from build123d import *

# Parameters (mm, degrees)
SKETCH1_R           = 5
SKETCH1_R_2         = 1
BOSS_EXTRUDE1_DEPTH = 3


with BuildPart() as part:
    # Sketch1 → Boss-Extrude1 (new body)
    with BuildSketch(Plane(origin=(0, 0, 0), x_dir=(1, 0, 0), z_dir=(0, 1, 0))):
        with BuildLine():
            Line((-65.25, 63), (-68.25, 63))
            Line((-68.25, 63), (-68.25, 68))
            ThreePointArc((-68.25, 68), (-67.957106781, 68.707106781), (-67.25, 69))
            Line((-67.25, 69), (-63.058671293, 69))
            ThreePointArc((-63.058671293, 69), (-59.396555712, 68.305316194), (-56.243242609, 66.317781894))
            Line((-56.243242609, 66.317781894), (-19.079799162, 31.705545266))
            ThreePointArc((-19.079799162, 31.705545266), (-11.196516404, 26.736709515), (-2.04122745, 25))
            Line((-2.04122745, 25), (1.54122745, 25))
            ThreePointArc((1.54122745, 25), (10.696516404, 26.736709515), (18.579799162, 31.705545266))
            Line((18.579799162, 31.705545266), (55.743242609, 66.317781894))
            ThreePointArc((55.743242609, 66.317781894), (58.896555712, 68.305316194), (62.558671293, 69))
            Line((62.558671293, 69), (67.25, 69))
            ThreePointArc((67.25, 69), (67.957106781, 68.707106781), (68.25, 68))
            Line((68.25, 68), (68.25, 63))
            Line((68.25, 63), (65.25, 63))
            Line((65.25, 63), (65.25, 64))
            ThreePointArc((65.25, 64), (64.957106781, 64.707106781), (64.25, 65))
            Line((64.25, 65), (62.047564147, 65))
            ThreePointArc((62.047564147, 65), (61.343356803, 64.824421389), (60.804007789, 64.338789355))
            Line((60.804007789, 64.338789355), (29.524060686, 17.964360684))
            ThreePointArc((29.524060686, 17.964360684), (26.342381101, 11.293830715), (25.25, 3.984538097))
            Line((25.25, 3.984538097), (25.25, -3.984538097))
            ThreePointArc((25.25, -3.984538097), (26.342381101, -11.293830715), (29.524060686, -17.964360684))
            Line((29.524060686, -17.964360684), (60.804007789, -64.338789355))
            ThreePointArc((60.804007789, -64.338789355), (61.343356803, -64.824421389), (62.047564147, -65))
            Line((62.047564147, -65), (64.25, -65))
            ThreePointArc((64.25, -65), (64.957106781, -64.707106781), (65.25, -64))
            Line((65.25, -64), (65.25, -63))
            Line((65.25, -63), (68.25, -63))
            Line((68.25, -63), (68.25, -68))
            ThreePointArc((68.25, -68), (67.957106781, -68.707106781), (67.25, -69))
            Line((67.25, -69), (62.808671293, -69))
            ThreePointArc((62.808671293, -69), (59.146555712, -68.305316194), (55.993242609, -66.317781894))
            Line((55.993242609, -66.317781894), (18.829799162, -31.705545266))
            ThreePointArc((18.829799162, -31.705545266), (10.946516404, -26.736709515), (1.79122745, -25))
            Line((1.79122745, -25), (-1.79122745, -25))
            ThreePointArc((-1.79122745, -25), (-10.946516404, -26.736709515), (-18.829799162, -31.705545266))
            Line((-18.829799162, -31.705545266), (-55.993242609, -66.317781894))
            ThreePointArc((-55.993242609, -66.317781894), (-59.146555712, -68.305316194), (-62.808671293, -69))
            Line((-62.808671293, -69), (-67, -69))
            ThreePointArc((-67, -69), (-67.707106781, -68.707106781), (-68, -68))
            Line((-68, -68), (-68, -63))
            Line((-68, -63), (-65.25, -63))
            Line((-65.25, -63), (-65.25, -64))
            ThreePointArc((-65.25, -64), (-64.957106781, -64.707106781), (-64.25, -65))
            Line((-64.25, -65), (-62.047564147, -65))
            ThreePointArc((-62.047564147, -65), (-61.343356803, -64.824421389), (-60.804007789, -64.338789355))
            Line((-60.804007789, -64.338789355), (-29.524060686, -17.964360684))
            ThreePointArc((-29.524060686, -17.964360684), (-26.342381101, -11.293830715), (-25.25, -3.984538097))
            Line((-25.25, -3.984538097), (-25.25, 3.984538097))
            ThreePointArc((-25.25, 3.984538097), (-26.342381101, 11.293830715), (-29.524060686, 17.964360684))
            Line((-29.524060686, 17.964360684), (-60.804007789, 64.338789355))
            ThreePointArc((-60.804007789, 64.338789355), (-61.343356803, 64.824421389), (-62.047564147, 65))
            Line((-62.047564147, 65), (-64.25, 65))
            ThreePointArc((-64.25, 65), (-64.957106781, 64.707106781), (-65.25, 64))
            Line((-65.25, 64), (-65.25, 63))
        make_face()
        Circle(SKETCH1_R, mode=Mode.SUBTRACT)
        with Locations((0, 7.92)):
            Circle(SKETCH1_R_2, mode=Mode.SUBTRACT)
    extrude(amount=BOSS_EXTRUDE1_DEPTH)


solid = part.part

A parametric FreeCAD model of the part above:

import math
import FreeCAD as App
import Part
import Sketcher
from FreeCAD import Vector
Q = App.Units.Quantity

doc = App.newDocument("Part")
body = doc.addObject("PartDesign::Body", "Body")

# Sketch on XZ plane
sketch1 = doc.addObject("Sketcher::SketchObject", "Sketch")
body.addObject(sketch1)
sketch1.AttachmentSupport = (doc.XZ_Plane, [""])
sketch1.MapMode = "FlatFace"
sketch1.addGeometry([
    Part.LineSegment(Vector(-68.2, -63, 0), Vector(-65.2, -63, 0)),  # 0
    Part.LineSegment(Vector(-65.2, -63, 0), Vector(-65.2, -64, 0)),  # 1
    Part.ArcOfCircle(Part.Circle(Vector(-64.2, -64, 0), Vector(0, 0, 1), 1), math.radians(-180), math.radians(-90)),  # 2
    Part.LineSegment(Vector(-64.2, -65, 0), Vector(-62, -65, 0)),  # 3
    Part.ArcOfCircle(Part.Circle(Vector(-62, -63.5, 0), Vector(0, 0, 1), 1.5), math.radians(-90), math.radians(-34)),  # 4
    Part.LineSegment(Vector(-60.8, -64.3, 0), Vector(-29.5, -18, 0)),  # 5
    Part.ArcOfCircle(Part.Circle(Vector(-50.3, -4, 0), Vector(0, 0, 1), 25), math.radians(-34), math.radians(0)),  # 6
    Part.LineSegment(Vector(-25.2, -4, 0), Vector(-25.2, 4, 0)),  # 7
    Part.ArcOfCircle(Part.Circle(Vector(-50.3, 4, 0), Vector(0, 0, 1), 25), math.radians(0), math.radians(34)),  # 8
    Part.LineSegment(Vector(-29.5, 18, 0), Vector(-60.8, 64.3, 0)),  # 9
    Part.ArcOfCircle(Part.Circle(Vector(-62, 63.5, 0), Vector(0, 0, 1), 1.5), math.radians(34), math.radians(90)),  # 10
    Part.LineSegment(Vector(-62, 65, 0), Vector(-64.2, 65, 0)),  # 11
    Part.ArcOfCircle(Part.Circle(Vector(-64.2, 64, 0), Vector(0, 0, 1), 1), math.radians(90), math.radians(180)),  # 12
    Part.LineSegment(Vector(-65.2, 64, 0), Vector(-65.2, 63, 0)),  # 13
    Part.LineSegment(Vector(-65.2, 63, 0), Vector(-68, 63, 0)),  # 14
    Part.LineSegment(Vector(-68, 63, 0), Vector(-68, 68, 0)),  # 15
    Part.ArcOfCircle(Part.Circle(Vector(-67, 68, 0), Vector(0, 0, 1), 1), math.radians(90), math.radians(180)),  # 16
    Part.LineSegment(Vector(-67, 69, 0), Vector(-62.8, 69, 0)),  # 17
    Part.ArcOfCircle(Part.Circle(Vector(-62.8, 59, 0), Vector(0, 0, 1), 10), math.radians(47), math.radians(90)),  # 18
    Part.LineSegment(Vector(-56, 66.3, 0), Vector(-18.8, 31.7, 0)),  # 19
    Part.ArcOfCircle(Part.Circle(Vector(-1.8, 50, 0), Vector(0, 0, 1), 25), math.radians(-133), math.radians(-90)),  # 20
    Part.LineSegment(Vector(-1.8, 25, 0), Vector(1.8, 25, 0)),  # 21
    Part.ArcOfCircle(Part.Circle(Vector(1.8, 50, 0), Vector(0, 0, 1), 25), math.radians(-90), math.radians(-47)),  # 22
    Part.LineSegment(Vector(18.8, 31.7, 0), Vector(56, 66.3, 0)),  # 23
    Part.ArcOfCircle(Part.Circle(Vector(62.8, 59, 0), Vector(0, 0, 1), 10), math.radians(90), math.radians(133)),  # 24
    Part.LineSegment(Vector(62.8, 69, 0), Vector(67.2, 69, 0)),  # 25
    Part.ArcOfCircle(Part.Circle(Vector(67.2, 68, 0), Vector(0, 0, 1), 1), math.radians(0), math.radians(90)),  # 26
    Part.LineSegment(Vector(68.2, 68, 0), Vector(68.2, 63, 0)),  # 27
    Part.LineSegment(Vector(68.2, 63, 0), Vector(65.2, 63, 0)),  # 28
    Part.LineSegment(Vector(65.2, 63, 0), Vector(65.2, 64, 0)),  # 29
    Part.ArcOfCircle(Part.Circle(Vector(64.2, 64, 0), Vector(0, 0, 1), 1), math.radians(0), math.radians(90)),  # 30
    Part.LineSegment(Vector(64.2, 65, 0), Vector(62, 65, 0)),  # 31
    Part.ArcOfCircle(Part.Circle(Vector(62, 63.5, 0), Vector(0, 0, 1), 1.5), math.radians(90), math.radians(146)),  # 32
    Part.LineSegment(Vector(60.8, 64.3, 0), Vector(29.5, 18, 0)),  # 33
    Part.ArcOfCircle(Part.Circle(Vector(50.3, 4, 0), Vector(0, 0, 1), 25), math.radians(146), math.radians(180)),  # 34
    Part.LineSegment(Vector(25.2, 4, 0), Vector(25.2, -4, 0)),  # 35
    Part.ArcOfCircle(Part.Circle(Vector(50.3, -4, 0), Vector(0, 0, 1), 25), math.radians(-180), math.radians(-146)),  # 36
    Part.LineSegment(Vector(29.5, -18, 0), Vector(60.8, -64.3, 0)),  # 37
    Part.ArcOfCircle(Part.Circle(Vector(62, -63.5, 0), Vector(0, 0, 1), 1.5), math.radians(-146), math.radians(-90)),  # 38
    Part.LineSegment(Vector(62, -65, 0), Vector(64.2, -65, 0)),  # 39
    Part.ArcOfCircle(Part.Circle(Vector(64.2, -64, 0), Vector(0, 0, 1), 1), math.radians(-90), math.radians(0)),  # 40
    Part.LineSegment(Vector(65.2, -64, 0), Vector(65.2, -63, 0)),  # 41
    Part.LineSegment(Vector(65.2, -63, 0), Vector(68.2, -63, 0)),  # 42
    Part.LineSegment(Vector(68.2, -63, 0), Vector(68.2, -68, 0)),  # 43
    Part.ArcOfCircle(Part.Circle(Vector(67.2, -68, 0), Vector(0, 0, 1), 1), math.radians(-90), math.radians(0)),  # 44
    Part.LineSegment(Vector(67.2, -69, 0), Vector(62.6, -69, 0)),  # 45
    Part.ArcOfCircle(Part.Circle(Vector(62.6, -59, 0), Vector(0, 0, 1), 10), math.radians(-133), math.radians(-90)),  # 46
    Part.LineSegment(Vector(55.7, -66.3, 0), Vector(18.6, -31.7, 0)),  # 47
    Part.ArcOfCircle(Part.Circle(Vector(1.5, -50, 0), Vector(0, 0, 1), 25), math.radians(47), math.radians(90)),  # 48
    Part.LineSegment(Vector(1.5, -25, 0), Vector(-2, -25, 0)),  # 49
    Part.ArcOfCircle(Part.Circle(Vector(-2, -50, 0), Vector(0, 0, 1), 25), math.radians(90), math.radians(133)),  # 50
    Part.LineSegment(Vector(-19.1, -31.7, 0), Vector(-56.2, -66.3, 0)),  # 51
    Part.ArcOfCircle(Part.Circle(Vector(-63.1, -59, 0), Vector(0, 0, 1), 10), math.radians(-90), math.radians(-47)),  # 52
    Part.LineSegment(Vector(-63.1, -69, 0), Vector(-67.2, -69, 0)),  # 53
    Part.ArcOfCircle(Part.Circle(Vector(-67.2, -68, 0), Vector(0, 0, 1), 1), math.radians(-180), math.radians(-90)),  # 54
    Part.LineSegment(Vector(-68.2, -68, 0), Vector(-68.2, -63, 0)),  # 55
    Part.Circle(Vector(0, 0, 0), Vector(0, 0, 1), 5),  # 56
    Part.Circle(Vector(0, -7.9, 0), Vector(0, 0, 1), 1),  # 57
], False)
sketch1.addConstraint([
    Sketcher.Constraint("Coincident", 0, 2, 1, 1),
    Sketcher.Constraint("Tangent", 1, 2, 2, 1),
    Sketcher.Constraint("Tangent", 2, 2, 3, 1),
    Sketcher.Constraint("Tangent", 3, 2, 4, 1),
    Sketcher.Constraint("Tangent", 4, 2, 5, 1),
    Sketcher.Constraint("Tangent", 5, 2, 6, 1),
    Sketcher.Constraint("Tangent", 6, 2, 7, 1),
    Sketcher.Constraint("Tangent", 7, 2, 8, 1),
    Sketcher.Constraint("Tangent", 8, 2, 9, 1),
    Sketcher.Constraint("Tangent", 9, 2, 10, 1),
    Sketcher.Constraint("Tangent", 10, 2, 11, 1),
    Sketcher.Constraint("Tangent", 11, 2, 12, 1),
    Sketcher.Constraint("Tangent", 12, 2, 13, 1),
    Sketcher.Constraint("Coincident", 13, 2, 14, 1),
    Sketcher.Constraint("Coincident", 14, 2, 15, 1),
    Sketcher.Constraint("Tangent", 15, 2, 16, 2),
    Sketcher.Constraint("Tangent", 16, 1, 17, 1),
    Sketcher.Constraint("Tangent", 17, 2, 18, 2),
    Sketcher.Constraint("Tangent", 18, 1, 19, 1),
    Sketcher.Constraint("Tangent", 19, 2, 20, 1),
    Sketcher.Constraint("Tangent", 20, 2, 21, 1),
    Sketcher.Constraint("Tangent", 21, 2, 22, 1),
    Sketcher.Constraint("Tangent", 22, 2, 23, 1),
    Sketcher.Constraint("Tangent", 23, 2, 24, 2),
    Sketcher.Constraint("Tangent", 24, 1, 25, 1),
    Sketcher.Constraint("Tangent", 25, 2, 26, 2),
    Sketcher.Constraint("Tangent", 26, 1, 27, 1),
    Sketcher.Constraint("Coincident", 27, 2, 28, 1),
    Sketcher.Constraint("Coincident", 28, 2, 29, 1),
    Sketcher.Constraint("Tangent", 29, 2, 30, 1),
    Sketcher.Constraint("Tangent", 30, 2, 31, 1),
    Sketcher.Constraint("Tangent", 31, 2, 32, 1),
    Sketcher.Constraint("Tangent", 32, 2, 33, 1),
    Sketcher.Constraint("Tangent", 33, 2, 34, 1),
    Sketcher.Constraint("Tangent", 34, 2, 35, 1),
    Sketcher.Constraint("Tangent", 35, 2, 36, 1),
    Sketcher.Constraint("Tangent", 36, 2, 37, 1),
    Sketcher.Constraint("Tangent", 37, 2, 38, 1),
    Sketcher.Constraint("Tangent", 38, 2, 39, 1),
    Sketcher.Constraint("Tangent", 39, 2, 40, 1),
    Sketcher.Constraint("Tangent", 40, 2, 41, 1),
    Sketcher.Constraint("Coincident", 41, 2, 42, 1),
    Sketcher.Constraint("Coincident", 42, 2, 43, 1),
    Sketcher.Constraint("Tangent", 43, 2, 44, 2),
    Sketcher.Constraint("Tangent", 44, 1, 45, 1),
    Sketcher.Constraint("Tangent", 45, 2, 46, 2),
    Sketcher.Constraint("Tangent", 46, 1, 47, 1),
    Sketcher.Constraint("Tangent", 47, 2, 48, 1),
    Sketcher.Constraint("Tangent", 48, 2, 49, 1),
    Sketcher.Constraint("Tangent", 49, 2, 50, 1),
    Sketcher.Constraint("Tangent", 50, 2, 51, 1),
    Sketcher.Constraint("Tangent", 51, 2, 52, 2),
    Sketcher.Constraint("Tangent", 52, 1, 53, 1),
    Sketcher.Constraint("Tangent", 53, 2, 54, 2),
    Sketcher.Constraint("Tangent", 54, 1, 55, 1),
    Sketcher.Constraint("Coincident", 55, 2, 0, 1),
    Sketcher.Constraint("Horizontal", 0),
    Sketcher.Constraint("Vertical", 1),
    Sketcher.Constraint("Horizontal", 3),
    Sketcher.Constraint("Vertical", 7),
    Sketcher.Constraint("Horizontal", 11),
    Sketcher.Constraint("Vertical", 13),
    Sketcher.Constraint("Horizontal", 14),
    Sketcher.Constraint("Vertical", 15),
    Sketcher.Constraint("Horizontal", 17),
    Sketcher.Constraint("Horizontal", 21),
    Sketcher.Constraint("Horizontal", 25),
    Sketcher.Constraint("Vertical", 27),
    Sketcher.Constraint("Horizontal", 28),
    Sketcher.Constraint("Vertical", 29),
    Sketcher.Constraint("Horizontal", 31),
    Sketcher.Constraint("Vertical", 35),
    Sketcher.Constraint("Horizontal", 39),
    Sketcher.Constraint("Vertical", 41),
    Sketcher.Constraint("Horizontal", 42),
    Sketcher.Constraint("Vertical", 43),
    Sketcher.Constraint("Horizontal", 45),
    Sketcher.Constraint("Horizontal", 49),
    Sketcher.Constraint("Horizontal", 53),
    Sketcher.Constraint("Vertical", 55),
    Sketcher.Constraint("Coincident", 56, 3, -1, 1),
    Sketcher.Constraint("Equal", 6, 8),
    Sketcher.Constraint("Equal", 4, 10),
    Sketcher.Constraint("Equal", 2, 12),
    Sketcher.Constraint("Equal", 12, 16),
    Sketcher.Constraint("Equal", 8, 20),
    Sketcher.Constraint("Equal", 20, 22),
    Sketcher.Constraint("Equal", 18, 24),
    Sketcher.Constraint("Equal", 16, 26),
    Sketcher.Constraint("Equal", 26, 30),
    Sketcher.Constraint("Equal", 10, 32),
    Sketcher.Constraint("Equal", 22, 34),
    Sketcher.Constraint("Equal", 34, 36),
    Sketcher.Constraint("Equal", 32, 38),
    Sketcher.Constraint("Equal", 30, 40),
    Sketcher.Constraint("Equal", 40, 44),
    Sketcher.Constraint("Equal", 24, 46),
    Sketcher.Constraint("Equal", 36, 48),
    Sketcher.Constraint("Equal", 48, 50),
    Sketcher.Constraint("Equal", 46, 52),
    Sketcher.Constraint("Equal", 44, 54),
    Sketcher.Constraint("Equal", 54, 57),
    Sketcher.Constraint("Symmetric", 2, 3, 30, 3, -1, 1),
    Sketcher.Constraint("Symmetric", 6, 3, 34, 3, -1, 1),
    Sketcher.Constraint("Symmetric", 10, 3, 38, 3, -1, 1),
    Sketcher.Constraint("Symmetric", 26, 3, 54, 3, -1, 1),
    Sketcher.Constraint("Symmetric", 13, 2, 41, 2, -1, 1),
    Sketcher.Constraint("Symmetric", 18, 3, 24, 3, -2),
    Sketcher.Constraint("Symmetric", 12, 3, 30, 3, -2),
    Sketcher.Constraint("Symmetric", 44, 3, 54, 3, -2),
    Sketcher.Constraint("Symmetric", 9, 2, 32, 2, -2),
    Sketcher.Constraint("Symmetric", 5, 2, 36, 2, -2),
    Sketcher.Constraint("PointOnObject", 57, 3, -2),
    Sketcher.Constraint("Parallel", 19, 47),
    Sketcher.Constraint("Parallel", 23, 51),
    Sketcher.Constraint("Horizontal", 19, 2, 22, 2),
    Sketcher.Constraint("Horizontal", 14, 2, 27, 2),
    Sketcher.Constraint("Horizontal", 0, 2, 41, 2),
    Sketcher.Constraint("Equal", 21, 49),
    Sketcher.Constraint("Equal", 17, 53),
    Sketcher.Constraint("Equal", 23, 47),
    Sketcher.Constraint("Diameter", 56, Q("10 mm")),
    Sketcher.Constraint("Diameter", 57, Q("2 mm")),
    Sketcher.Constraint("Radius", 6, Q("25 mm")),
    Sketcher.Constraint("Radius", 18, Q("10 mm")),
    Sketcher.Constraint("Radius", 4, Q("1.5 mm")),
    Sketcher.Constraint("DistanceX", 0, 1, 0, 2, Q("3 mm")),
    Sketcher.Constraint("DistanceY", 1, 2, 1, 1, Q("1 mm")),
    Sketcher.Constraint("DistanceY", 15, 1, 15, 2, Q("5 mm")),
    Sketcher.Constraint("Angle", 5, Q("56 deg")),
    Sketcher.Constraint("DistanceY", 2, 3, -1, 1, Q("64 mm")),
    Sketcher.Constraint("DistanceX", 16, 3, -1, 1, Q("67 mm")),
    Sketcher.Constraint("DistanceY", -1, 1, 20, 3, Q("50 mm")),
    Sketcher.Constraint("DistanceX", 14, 2, 14, 1, Q("2.75 mm")),
    Sketcher.Constraint("DistanceX", 6, 3, -1, 1, Q("50.25 mm")),
    Sketcher.Constraint("DistanceY", 57, 3, -1, 1, Q("7.92 mm")),
    Sketcher.Constraint("DistanceX", 17, 1, 17, 2, Q("4.191329 mm")),
    Sketcher.Constraint("DistanceX", 19, 2, -1, 1, Q("18.829799 mm")),
    Sketcher.Constraint("Distance", 5, Q("55.937668 mm")),
])
pad1 = doc.addObject("PartDesign::Pad", "Pad")
body.addObject(pad1)
pad1.Profile = sketch1
pad1.Length = 3
pad1.Reversed = True

doc.recompute()
